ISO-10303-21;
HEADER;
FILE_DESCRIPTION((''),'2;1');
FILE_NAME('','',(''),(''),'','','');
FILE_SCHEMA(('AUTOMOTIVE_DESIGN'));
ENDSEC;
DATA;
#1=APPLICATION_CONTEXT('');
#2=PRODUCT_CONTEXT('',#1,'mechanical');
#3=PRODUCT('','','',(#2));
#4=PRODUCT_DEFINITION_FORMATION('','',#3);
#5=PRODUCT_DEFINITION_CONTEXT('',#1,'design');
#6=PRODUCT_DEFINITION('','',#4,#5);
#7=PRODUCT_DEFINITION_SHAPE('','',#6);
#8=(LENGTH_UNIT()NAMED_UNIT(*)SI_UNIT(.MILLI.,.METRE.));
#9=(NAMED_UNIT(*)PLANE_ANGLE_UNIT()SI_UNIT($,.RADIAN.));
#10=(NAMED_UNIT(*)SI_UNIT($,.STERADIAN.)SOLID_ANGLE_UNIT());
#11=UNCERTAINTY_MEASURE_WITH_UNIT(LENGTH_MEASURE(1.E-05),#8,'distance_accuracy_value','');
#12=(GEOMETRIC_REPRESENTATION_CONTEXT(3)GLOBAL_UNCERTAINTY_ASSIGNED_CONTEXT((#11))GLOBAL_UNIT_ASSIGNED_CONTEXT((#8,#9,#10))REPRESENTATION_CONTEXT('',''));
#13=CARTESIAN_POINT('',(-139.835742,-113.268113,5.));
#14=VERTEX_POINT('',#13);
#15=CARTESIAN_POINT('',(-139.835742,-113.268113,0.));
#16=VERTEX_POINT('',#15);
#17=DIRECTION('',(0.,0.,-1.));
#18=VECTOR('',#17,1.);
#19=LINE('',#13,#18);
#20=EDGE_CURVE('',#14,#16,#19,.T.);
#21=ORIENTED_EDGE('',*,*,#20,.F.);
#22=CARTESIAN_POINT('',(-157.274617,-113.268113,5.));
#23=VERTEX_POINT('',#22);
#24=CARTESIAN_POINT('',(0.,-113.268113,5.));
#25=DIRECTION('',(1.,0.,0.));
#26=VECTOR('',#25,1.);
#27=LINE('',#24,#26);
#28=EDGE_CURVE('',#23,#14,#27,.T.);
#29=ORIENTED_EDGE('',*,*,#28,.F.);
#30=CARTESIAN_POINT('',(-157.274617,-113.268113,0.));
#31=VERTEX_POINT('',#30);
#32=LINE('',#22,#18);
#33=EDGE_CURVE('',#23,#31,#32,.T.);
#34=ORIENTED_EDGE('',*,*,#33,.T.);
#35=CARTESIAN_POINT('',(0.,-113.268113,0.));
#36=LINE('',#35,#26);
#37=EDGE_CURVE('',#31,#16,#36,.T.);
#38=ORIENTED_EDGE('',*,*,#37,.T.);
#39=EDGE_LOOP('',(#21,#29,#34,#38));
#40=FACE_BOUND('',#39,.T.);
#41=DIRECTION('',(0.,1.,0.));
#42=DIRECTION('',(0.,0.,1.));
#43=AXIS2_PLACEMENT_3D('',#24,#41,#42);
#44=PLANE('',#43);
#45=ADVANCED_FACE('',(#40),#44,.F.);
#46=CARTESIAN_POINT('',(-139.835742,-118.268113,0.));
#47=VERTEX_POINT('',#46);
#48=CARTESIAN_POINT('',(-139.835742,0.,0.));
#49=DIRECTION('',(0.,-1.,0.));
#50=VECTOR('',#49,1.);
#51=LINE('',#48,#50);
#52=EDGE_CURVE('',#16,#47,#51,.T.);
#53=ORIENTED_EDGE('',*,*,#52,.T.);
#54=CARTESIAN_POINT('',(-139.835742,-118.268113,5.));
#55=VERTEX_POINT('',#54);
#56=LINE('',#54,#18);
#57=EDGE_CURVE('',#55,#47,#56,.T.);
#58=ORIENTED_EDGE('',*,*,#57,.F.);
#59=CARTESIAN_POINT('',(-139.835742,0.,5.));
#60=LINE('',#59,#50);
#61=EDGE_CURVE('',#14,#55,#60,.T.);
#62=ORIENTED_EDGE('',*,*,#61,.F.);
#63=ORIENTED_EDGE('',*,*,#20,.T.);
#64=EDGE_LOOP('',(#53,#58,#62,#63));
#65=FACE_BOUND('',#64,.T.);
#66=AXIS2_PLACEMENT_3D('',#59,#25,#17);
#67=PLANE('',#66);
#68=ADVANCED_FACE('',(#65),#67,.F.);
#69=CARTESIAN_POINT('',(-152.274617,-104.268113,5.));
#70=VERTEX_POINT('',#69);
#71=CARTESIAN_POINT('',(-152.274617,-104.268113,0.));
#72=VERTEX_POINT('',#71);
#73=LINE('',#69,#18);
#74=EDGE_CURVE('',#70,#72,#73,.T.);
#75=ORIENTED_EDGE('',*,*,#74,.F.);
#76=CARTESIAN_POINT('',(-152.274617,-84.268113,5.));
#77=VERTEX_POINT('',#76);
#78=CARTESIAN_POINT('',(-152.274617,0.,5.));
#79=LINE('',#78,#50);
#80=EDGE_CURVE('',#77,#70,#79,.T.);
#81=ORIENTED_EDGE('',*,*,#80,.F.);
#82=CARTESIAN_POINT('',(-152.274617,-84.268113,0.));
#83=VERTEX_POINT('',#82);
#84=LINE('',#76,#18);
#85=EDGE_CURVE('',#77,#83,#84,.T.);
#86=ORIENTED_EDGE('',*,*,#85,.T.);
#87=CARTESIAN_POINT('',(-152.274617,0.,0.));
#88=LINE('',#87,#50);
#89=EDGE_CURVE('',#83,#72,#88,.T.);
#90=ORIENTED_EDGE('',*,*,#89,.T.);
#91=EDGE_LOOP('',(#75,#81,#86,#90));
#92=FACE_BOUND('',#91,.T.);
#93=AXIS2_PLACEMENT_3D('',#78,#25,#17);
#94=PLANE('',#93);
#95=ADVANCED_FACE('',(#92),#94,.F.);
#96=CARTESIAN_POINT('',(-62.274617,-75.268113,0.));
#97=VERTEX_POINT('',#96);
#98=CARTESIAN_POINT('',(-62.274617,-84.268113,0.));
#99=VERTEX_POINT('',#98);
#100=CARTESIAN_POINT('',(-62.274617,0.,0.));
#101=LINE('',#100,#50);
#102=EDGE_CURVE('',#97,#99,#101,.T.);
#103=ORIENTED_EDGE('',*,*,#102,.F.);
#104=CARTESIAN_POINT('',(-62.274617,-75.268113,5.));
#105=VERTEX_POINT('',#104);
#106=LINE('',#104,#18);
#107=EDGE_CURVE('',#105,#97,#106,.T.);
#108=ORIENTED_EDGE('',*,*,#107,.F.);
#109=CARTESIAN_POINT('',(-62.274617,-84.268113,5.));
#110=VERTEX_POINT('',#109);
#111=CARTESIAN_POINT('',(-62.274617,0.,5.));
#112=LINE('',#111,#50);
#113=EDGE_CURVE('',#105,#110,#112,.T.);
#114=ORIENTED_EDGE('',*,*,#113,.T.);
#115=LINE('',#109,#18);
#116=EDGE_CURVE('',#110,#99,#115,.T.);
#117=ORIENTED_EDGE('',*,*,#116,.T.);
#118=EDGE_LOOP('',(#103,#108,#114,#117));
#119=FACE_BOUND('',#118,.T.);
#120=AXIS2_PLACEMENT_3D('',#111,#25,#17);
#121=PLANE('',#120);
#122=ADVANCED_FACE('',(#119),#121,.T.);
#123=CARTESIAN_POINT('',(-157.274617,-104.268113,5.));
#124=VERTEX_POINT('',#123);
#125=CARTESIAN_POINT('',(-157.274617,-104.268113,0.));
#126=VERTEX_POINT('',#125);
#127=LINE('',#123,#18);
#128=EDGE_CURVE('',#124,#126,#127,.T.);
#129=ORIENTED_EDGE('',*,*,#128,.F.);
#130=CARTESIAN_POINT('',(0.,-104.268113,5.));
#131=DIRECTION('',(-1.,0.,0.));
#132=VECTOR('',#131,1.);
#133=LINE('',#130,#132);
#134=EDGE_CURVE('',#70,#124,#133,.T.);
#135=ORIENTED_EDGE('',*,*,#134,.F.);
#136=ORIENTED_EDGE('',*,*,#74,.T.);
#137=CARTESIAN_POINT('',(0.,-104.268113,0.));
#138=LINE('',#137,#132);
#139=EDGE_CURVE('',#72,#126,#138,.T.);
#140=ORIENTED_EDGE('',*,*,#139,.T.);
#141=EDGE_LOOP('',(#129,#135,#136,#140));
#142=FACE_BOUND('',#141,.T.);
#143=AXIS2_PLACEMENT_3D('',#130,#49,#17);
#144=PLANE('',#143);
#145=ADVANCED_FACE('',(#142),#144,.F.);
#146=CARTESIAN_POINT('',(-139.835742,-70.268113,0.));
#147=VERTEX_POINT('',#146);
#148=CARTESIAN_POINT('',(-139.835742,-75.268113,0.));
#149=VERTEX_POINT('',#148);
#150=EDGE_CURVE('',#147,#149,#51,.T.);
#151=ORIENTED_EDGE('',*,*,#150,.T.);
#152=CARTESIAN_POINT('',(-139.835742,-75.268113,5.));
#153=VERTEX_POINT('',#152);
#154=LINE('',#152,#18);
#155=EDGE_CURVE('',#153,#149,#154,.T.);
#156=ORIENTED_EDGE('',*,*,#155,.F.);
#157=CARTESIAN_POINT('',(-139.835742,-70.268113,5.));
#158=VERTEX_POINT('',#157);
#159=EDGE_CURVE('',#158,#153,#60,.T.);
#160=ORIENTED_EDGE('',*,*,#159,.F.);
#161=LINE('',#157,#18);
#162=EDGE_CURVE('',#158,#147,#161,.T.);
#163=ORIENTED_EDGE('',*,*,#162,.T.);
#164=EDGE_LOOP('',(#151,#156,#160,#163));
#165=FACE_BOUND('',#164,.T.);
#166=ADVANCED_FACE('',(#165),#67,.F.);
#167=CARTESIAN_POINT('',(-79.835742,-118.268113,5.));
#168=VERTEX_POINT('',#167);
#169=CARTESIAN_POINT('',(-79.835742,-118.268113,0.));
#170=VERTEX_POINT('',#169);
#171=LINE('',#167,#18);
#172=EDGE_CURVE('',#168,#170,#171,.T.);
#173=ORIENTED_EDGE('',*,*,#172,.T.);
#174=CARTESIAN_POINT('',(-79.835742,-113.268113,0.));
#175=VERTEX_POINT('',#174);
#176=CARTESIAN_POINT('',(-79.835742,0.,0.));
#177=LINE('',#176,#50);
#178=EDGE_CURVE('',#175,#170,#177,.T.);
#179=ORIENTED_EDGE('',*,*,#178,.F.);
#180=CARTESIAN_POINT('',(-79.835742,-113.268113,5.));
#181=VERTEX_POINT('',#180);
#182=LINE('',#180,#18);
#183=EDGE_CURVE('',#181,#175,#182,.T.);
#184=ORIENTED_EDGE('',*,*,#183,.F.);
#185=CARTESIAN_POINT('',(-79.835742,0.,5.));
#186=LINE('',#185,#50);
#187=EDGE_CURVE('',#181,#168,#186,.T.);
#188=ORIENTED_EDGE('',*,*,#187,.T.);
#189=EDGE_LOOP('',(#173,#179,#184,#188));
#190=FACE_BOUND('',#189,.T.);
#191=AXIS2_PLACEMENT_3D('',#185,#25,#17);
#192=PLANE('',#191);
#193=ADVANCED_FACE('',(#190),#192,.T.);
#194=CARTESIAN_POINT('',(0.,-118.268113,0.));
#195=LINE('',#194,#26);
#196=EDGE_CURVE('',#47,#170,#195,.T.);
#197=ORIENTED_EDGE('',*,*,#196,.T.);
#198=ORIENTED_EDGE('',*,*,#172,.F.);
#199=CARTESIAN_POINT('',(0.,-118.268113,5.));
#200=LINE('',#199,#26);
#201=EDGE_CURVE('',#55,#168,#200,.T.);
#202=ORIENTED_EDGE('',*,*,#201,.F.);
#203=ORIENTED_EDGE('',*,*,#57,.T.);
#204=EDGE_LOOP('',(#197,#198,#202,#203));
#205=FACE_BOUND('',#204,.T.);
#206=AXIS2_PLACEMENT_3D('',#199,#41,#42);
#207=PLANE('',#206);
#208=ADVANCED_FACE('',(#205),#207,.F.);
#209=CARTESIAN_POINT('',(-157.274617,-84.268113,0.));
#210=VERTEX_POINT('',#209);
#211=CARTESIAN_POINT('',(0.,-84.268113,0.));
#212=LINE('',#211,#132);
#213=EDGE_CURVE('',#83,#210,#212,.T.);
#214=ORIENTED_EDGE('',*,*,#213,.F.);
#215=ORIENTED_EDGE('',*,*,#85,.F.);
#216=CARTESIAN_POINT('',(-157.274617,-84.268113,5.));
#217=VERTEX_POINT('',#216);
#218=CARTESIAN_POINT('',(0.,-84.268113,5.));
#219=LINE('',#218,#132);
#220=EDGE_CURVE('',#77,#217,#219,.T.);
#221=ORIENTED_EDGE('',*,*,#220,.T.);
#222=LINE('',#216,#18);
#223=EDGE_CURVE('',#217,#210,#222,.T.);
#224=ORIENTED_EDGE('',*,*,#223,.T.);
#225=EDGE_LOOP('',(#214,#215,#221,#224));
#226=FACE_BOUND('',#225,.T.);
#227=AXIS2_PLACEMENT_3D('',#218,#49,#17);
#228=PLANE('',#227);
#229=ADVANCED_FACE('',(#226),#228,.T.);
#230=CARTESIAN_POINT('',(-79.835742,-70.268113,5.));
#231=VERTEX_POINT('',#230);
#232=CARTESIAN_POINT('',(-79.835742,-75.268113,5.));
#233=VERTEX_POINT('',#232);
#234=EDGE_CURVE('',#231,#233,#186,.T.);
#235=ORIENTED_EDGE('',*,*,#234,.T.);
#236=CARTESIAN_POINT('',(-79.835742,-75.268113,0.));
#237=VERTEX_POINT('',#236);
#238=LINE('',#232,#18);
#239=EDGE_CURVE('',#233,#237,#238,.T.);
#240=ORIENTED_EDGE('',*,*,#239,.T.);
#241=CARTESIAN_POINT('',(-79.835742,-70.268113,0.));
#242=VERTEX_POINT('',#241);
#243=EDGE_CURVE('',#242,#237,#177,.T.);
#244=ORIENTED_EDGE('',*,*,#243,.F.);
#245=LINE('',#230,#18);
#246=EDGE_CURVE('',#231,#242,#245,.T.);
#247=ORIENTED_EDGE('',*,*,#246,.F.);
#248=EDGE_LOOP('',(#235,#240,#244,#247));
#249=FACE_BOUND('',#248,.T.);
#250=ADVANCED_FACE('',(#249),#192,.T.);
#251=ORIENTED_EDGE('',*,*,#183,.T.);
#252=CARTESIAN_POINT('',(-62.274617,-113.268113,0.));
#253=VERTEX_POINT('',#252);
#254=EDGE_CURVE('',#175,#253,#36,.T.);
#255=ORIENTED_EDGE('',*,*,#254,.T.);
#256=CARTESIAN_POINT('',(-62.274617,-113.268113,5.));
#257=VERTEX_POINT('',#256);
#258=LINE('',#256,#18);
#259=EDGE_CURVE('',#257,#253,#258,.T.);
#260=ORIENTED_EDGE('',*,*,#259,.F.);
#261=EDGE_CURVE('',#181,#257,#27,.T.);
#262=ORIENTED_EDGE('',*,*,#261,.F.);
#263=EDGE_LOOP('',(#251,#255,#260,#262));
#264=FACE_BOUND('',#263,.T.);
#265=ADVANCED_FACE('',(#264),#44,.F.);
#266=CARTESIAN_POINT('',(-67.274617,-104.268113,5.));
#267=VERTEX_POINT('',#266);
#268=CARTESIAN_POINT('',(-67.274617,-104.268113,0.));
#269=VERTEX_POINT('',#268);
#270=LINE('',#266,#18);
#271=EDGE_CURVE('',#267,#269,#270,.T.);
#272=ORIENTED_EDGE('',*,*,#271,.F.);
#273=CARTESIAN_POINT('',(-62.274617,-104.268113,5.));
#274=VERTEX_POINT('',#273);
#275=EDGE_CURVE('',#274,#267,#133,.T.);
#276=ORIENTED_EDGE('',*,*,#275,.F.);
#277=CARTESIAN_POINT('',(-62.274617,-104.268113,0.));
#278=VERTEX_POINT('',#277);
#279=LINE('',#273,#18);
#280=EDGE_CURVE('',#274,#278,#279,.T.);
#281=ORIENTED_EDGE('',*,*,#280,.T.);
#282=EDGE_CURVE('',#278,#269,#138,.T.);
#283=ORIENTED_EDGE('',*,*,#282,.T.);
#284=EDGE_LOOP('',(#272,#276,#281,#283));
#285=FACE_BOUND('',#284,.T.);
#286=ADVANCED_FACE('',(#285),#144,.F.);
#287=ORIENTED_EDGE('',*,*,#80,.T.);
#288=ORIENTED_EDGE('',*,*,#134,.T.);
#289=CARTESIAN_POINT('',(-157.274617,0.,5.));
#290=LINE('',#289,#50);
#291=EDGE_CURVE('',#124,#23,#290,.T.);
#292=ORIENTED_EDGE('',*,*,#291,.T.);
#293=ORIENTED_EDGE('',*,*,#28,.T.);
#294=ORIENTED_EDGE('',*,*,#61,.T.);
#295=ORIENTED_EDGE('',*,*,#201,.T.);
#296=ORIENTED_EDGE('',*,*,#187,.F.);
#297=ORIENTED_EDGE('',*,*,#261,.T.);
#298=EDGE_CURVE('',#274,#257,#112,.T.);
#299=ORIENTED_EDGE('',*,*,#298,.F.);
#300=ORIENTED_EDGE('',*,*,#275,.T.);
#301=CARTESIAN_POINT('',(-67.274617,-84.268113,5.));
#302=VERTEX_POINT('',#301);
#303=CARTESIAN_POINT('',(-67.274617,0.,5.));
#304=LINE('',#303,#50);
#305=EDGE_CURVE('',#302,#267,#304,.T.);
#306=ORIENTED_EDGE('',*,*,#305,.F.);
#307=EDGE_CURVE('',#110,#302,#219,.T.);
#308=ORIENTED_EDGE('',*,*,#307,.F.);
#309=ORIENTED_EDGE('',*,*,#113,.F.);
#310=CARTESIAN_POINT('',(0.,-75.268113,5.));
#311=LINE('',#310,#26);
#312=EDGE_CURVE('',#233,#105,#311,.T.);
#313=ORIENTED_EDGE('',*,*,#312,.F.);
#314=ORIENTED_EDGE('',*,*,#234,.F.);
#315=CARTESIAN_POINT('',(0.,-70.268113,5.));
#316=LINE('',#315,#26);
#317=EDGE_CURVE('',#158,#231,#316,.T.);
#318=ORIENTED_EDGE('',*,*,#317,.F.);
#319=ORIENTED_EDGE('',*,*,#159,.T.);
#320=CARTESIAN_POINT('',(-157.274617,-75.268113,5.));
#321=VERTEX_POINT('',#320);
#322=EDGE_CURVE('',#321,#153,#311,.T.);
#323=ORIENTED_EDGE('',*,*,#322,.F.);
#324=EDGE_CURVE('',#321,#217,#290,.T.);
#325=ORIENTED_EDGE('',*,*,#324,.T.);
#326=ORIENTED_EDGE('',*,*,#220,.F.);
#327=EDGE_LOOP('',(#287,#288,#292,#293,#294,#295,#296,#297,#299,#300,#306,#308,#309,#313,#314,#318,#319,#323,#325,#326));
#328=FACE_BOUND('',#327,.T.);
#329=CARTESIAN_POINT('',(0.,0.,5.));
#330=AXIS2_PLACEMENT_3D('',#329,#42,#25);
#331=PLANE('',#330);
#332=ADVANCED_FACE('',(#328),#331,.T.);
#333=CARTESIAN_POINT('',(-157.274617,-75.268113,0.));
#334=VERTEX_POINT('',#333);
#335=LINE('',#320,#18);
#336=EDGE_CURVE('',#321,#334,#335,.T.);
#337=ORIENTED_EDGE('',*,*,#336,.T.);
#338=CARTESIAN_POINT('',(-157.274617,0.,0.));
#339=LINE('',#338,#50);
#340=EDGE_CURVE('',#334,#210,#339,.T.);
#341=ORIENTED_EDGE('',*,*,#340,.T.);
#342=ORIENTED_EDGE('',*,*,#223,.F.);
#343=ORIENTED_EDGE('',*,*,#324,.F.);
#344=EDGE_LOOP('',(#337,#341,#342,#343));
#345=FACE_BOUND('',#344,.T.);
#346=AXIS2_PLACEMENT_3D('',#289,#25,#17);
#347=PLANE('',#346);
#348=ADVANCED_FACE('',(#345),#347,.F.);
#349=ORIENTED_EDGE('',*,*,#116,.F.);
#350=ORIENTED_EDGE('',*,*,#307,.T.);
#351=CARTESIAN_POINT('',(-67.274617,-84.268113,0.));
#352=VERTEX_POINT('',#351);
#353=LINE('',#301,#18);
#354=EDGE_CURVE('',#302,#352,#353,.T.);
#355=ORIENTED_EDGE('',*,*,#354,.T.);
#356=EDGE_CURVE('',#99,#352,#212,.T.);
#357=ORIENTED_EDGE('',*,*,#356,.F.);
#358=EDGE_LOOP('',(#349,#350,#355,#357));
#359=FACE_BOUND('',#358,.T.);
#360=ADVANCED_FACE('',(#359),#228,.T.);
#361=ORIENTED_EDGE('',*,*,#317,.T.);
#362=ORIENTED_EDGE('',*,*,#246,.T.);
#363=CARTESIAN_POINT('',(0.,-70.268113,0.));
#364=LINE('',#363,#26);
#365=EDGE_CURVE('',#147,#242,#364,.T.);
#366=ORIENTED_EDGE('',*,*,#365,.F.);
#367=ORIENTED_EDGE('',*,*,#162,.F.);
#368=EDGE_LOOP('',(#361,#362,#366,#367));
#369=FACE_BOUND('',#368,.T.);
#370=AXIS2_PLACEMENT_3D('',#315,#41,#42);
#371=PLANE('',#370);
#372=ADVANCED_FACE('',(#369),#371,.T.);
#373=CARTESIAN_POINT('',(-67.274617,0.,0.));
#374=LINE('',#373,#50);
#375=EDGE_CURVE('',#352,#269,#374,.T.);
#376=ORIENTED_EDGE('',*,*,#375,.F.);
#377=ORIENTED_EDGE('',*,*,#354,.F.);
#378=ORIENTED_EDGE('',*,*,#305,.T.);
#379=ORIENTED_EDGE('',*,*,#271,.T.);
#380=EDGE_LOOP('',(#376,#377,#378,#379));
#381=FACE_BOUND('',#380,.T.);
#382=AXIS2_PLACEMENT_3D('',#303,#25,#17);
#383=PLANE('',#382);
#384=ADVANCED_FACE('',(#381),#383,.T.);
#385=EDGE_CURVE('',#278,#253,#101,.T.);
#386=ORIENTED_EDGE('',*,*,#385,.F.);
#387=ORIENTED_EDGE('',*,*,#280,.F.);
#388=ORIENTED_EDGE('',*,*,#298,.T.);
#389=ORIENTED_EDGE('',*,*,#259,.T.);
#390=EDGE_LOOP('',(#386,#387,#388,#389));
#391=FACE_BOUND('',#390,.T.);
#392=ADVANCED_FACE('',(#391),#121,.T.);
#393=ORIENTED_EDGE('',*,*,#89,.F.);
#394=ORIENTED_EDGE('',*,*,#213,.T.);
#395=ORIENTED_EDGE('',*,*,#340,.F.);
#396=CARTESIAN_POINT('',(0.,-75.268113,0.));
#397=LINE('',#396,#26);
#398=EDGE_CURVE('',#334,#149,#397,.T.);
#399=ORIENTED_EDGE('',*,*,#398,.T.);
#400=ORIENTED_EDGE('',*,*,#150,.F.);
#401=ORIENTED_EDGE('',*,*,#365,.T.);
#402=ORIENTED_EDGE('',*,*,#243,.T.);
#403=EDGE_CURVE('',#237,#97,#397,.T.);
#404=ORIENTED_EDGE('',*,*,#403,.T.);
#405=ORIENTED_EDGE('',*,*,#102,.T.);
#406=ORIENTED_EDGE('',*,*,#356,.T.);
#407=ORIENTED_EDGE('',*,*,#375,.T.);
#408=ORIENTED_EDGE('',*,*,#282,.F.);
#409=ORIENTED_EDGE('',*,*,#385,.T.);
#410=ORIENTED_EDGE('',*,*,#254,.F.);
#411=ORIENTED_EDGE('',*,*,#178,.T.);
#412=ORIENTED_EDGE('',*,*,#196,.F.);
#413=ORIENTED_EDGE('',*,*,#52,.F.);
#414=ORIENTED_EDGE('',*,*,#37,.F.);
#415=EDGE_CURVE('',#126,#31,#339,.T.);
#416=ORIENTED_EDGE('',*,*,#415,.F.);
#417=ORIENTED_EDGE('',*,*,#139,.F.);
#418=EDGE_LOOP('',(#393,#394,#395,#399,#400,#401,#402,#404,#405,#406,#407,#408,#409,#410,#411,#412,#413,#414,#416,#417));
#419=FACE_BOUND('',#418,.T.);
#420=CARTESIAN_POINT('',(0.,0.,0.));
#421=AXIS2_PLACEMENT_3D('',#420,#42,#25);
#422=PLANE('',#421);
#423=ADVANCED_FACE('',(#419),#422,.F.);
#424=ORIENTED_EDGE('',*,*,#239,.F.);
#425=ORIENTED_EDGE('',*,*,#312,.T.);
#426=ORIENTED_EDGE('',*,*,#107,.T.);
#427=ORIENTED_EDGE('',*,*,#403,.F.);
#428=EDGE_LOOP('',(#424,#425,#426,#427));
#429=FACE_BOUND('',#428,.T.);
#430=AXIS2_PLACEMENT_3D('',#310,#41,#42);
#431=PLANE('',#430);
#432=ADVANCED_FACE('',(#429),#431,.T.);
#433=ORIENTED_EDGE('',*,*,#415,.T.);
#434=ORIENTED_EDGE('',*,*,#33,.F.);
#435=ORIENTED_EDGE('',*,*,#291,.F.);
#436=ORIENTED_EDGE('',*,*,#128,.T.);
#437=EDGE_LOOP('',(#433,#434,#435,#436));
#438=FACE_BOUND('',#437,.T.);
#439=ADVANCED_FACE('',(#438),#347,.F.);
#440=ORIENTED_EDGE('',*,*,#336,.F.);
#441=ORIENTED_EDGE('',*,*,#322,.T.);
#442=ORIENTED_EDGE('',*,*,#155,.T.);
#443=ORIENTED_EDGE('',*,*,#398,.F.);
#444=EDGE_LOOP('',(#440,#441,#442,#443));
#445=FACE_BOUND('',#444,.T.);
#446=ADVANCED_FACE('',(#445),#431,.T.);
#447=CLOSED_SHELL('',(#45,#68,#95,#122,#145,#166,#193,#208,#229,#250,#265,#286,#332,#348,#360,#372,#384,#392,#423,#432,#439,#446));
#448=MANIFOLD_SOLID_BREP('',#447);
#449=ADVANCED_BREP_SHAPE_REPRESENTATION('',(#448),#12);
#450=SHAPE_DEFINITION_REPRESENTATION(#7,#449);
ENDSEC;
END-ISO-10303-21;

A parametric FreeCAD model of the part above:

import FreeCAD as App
import Part
import Sketcher

V = App.Vector


def add_polygon(sketch, points):
    """Adds a closed chain of lines whose ends are joined by coincident constraints."""
    first, n = sketch.GeometryCount, len(points)
    for a, b in zip(points, points[1:] + points[:1]):
        sketch.addGeometry(Part.LineSegment(App.Vector(*a, 0), App.Vector(*b, 0)), False)
    for i in range(n):
        sketch.addConstraint(Sketcher.Constraint("Coincident", first + i, 2, first + (i + 1) % n, 1))

doc = App.newDocument("Part")
body = doc.addObject("PartDesign::Body", "Body")

# Sketch on XY plane
sketch1 = body.newObject("Sketcher::SketchObject", "Sketch")
sketch1.AttachmentSupport = (doc.getObject("XY_Plane"), [""])
sketch1.MapMode = "FlatFace"
add_polygon(sketch1, [(-152, -84), (-152, -104), (-157, -104), (-157, -113), (-140, -113), (-140, -118), (-80, -118), (-80, -113), (-62, -113), (-62, -104), (-67, -104), (-67, -84), (-62, -84), (-62, -75), (-80, -75), (-80, -70), (-140, -70), (-140, -75), (-157, -75), (-157, -84)])  # lines 0-19
sketch1.addConstraint([
    Sketcher.Constraint("Vertical", 0),
    Sketcher.Constraint("Horizontal", 1),
    Sketcher.Constraint("Vertical", 2),
    Sketcher.Constraint("Horizontal", 3),
    Sketcher.Constraint("Vertical", 4),
    Sketcher.Constraint("Horizontal", 5),
    Sketcher.Constraint("Vertical", 6),
    Sketcher.Constraint("Horizontal", 7),
    Sketcher.Constraint("Vertical", 8),
    Sketcher.Constraint("Horizontal", 9),
    Sketcher.Constraint("Vertical", 10),
    Sketcher.Constraint("Horizontal", 11),
    Sketcher.Constraint("Vertical", 12),
    Sketcher.Constraint("Horizontal", 13),
    Sketcher.Constraint("Vertical", 14),
    Sketcher.Constraint("Horizontal", 15),
    Sketcher.Constraint("Vertical", 16),
    Sketcher.Constraint("Horizontal", 17),
    Sketcher.Constraint("Vertical", 18),
    Sketcher.Constraint("Horizontal", 19),
    Sketcher.Constraint("Horizontal", 3, 2, 6, 2),
    Sketcher.Constraint("Horizontal", 1, 2, 8, 2),
    Sketcher.Constraint("Horizontal", 13, 2, 16, 2),
    Sketcher.Constraint("Horizontal", 11, 2, 18, 2),
    Sketcher.Constraint("Vertical", 8, 2, 11, 2),
    Sketcher.Constraint("Vertical", 6, 2, 13, 2),
    Sketcher.Constraint("Vertical", 4, 2, 15, 2),
    Sketcher.Constraint("Vertical", 2, 2, 17, 2),
    Sketcher.Constraint("Equal", 1, 9),
    Sketcher.Constraint("Equal", 19, 4),
    Sketcher.Constraint("Equal", 8, 12),
    Sketcher.Constraint("Equal", 6, 14),
    Sketcher.Constraint("DistanceX", 1, 2, 1, 1, 5.0),
    Sketcher.Constraint("DistanceX", 5, 1, 5, 2, 60.0),
    Sketcher.Constraint("DistanceY", 0, 2, 0, 1, 20.0),
    Sketcher.Constraint("DistanceY", 2, 2, 2, 1, 9.0),
    Sketcher.Constraint("DistanceX", 0, 2, 7, 2, 90.0),
    Sketcher.Constraint("DistanceX", 3, 1, 3, 2, 17.438875),
    Sketcher.Constraint("DistanceX", 0, 2, -1, 1, 152.274617),
    Sketcher.Constraint("DistanceY", 0, 2, -1, 1, 104.268113),
])
pad1 = body.newObject("PartDesign::Pad", "Pad")
pad1.Profile = sketch1
pad1.Length = 5

doc.recompute()
